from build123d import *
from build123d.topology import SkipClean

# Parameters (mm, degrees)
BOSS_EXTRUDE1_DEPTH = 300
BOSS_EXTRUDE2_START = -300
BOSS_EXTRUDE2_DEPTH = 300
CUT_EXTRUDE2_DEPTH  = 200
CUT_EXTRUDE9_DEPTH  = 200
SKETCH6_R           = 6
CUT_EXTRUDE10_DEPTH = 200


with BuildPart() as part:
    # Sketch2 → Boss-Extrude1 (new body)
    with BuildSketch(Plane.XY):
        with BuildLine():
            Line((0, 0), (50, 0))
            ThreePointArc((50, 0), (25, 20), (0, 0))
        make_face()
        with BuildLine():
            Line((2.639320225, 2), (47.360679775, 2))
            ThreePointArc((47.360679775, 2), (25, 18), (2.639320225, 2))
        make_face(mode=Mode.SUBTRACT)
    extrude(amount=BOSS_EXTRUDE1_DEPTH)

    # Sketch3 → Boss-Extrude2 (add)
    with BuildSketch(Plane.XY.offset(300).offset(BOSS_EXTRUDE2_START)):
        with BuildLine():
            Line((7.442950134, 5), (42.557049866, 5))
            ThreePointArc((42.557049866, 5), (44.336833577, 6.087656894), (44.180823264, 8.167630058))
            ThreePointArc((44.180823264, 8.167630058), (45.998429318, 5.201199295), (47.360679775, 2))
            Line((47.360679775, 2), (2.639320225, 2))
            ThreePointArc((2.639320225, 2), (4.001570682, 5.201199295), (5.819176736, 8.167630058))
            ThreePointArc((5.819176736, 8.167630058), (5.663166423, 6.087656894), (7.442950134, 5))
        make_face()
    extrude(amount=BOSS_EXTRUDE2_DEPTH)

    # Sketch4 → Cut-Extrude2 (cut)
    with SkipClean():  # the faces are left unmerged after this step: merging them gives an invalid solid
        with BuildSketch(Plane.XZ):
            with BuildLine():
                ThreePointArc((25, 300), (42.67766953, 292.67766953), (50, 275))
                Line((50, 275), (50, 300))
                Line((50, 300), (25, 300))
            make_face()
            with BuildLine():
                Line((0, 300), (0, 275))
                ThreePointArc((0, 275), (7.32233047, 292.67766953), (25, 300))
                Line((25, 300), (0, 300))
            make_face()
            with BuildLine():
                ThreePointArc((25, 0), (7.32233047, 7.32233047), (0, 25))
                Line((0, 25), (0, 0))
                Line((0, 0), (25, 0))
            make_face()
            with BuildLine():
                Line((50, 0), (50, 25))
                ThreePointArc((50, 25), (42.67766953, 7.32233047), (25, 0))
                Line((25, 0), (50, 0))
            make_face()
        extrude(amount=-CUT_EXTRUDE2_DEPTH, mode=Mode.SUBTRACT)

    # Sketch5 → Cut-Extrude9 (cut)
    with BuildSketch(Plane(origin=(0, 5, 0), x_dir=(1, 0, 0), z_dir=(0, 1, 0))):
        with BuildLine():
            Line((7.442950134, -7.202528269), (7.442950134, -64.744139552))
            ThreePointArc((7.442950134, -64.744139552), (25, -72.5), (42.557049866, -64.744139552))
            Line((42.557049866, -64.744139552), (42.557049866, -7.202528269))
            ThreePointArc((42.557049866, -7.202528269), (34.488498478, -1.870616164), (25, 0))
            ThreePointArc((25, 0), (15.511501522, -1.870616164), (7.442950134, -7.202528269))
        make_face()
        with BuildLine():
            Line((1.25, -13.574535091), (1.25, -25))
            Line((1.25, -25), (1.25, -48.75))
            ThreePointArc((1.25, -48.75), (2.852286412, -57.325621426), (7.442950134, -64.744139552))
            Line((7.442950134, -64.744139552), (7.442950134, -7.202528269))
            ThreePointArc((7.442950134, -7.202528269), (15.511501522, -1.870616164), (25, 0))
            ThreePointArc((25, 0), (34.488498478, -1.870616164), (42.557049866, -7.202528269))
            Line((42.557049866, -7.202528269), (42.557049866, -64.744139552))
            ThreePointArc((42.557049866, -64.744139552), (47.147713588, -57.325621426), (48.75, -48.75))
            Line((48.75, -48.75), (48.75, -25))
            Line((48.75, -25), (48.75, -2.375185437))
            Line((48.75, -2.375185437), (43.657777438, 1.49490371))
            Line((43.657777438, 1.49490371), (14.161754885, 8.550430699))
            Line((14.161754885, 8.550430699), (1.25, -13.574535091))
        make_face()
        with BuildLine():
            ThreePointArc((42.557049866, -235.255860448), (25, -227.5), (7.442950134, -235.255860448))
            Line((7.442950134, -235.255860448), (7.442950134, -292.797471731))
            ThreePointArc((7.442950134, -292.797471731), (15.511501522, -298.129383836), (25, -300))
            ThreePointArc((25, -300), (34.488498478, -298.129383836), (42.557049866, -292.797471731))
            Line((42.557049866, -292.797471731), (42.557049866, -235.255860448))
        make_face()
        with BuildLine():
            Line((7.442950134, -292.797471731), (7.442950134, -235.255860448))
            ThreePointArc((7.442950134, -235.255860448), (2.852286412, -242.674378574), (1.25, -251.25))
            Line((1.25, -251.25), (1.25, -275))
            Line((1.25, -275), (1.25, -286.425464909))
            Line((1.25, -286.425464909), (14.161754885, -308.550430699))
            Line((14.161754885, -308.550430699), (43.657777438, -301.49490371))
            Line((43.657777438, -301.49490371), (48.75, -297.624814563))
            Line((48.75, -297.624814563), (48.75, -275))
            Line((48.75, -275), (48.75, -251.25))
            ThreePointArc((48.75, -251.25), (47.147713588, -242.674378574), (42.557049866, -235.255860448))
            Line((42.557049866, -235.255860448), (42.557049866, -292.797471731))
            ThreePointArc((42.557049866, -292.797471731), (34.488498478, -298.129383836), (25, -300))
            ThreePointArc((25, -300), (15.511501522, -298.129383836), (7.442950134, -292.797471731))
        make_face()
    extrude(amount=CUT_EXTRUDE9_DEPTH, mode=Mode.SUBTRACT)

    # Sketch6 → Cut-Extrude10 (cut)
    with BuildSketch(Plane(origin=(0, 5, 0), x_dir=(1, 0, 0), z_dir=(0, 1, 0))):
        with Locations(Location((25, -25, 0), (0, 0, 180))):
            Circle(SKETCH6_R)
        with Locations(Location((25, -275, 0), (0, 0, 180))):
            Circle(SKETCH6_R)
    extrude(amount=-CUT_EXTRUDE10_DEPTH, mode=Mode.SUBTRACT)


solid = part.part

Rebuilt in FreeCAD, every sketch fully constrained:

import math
import FreeCAD as App
import Part
import Sketcher

doc = App.newDocument("Part")
body = doc.addObject("PartDesign::Body", "Body")

sketch1 = body.newObject("Sketcher::SketchObject", "Sketch")
sketch1.AttachmentSupport = (doc.getObject("XY_Plane"), [""])
sketch1.MapMode = "FlatFace"
sketch1.addGeometry([
    Part.LineSegment(App.Vector(0, 0, 0), App.Vector(50, 0, 0)),
    Part.ArcOfCircle(Part.Circle(App.Vector(25, -6, 0), App.Vector(0, 0, 1), 26), math.radians(13), math.radians(167)),
    Part.LineSegment(App.Vector(47, 2, 0), App.Vector(3, 2, 0)),
    Part.ArcOfCircle(Part.Circle(App.Vector(25, -6, 0), App.Vector(0, 0, 1), 24), math.radians(19), math.radians(161)),
], False)
sketch1.addConstraint([
    Sketcher.Constraint("Coincident", 0, 1, 1, 2),
    Sketcher.Constraint("Coincident", 1, 1, 0, 2),
    Sketcher.Constraint("Coincident", 2, 1, 3, 1),
    Sketcher.Constraint("Coincident", 3, 2, 2, 2),
    Sketcher.Constraint("Horizontal", 0),
    Sketcher.Constraint("Horizontal", 2),
    Sketcher.Constraint("Coincident", 0, 1, -1, 1),
    Sketcher.Constraint("Coincident", 3, 3, 1, 3),
    Sketcher.Constraint("DistanceX", 0, 1, 0, 2, 50.0),
    Sketcher.Constraint("DistanceY", -1, 1, 2, 1, 2.0),
    Sketcher.Constraint("Radius", 1, 25.625),
    Sketcher.Constraint("Radius", 3, 23.625),
])
pad1 = body.newObject("PartDesign::Pad", "Pad")
pad1.Profile = sketch1
pad1.Length = 300

sketch2 = body.newObject("Sketcher::SketchObject", "Sketch001")
sketch2.AttachmentSupport = (doc.getObject("XY_Plane"), [""])
sketch2.MapMode = "FlatFace"
sketch2.addGeometry([
    Part.LineSegment(App.Vector(42.6, 5, 0), App.Vector(7.4, 5, 0)),
    Part.ArcOfCircle(Part.Circle(App.Vector(7.4, 7, 0), App.Vector(0, 0, 1), 2), math.radians(144), math.radians(270)),
    Part.ArcOfCircle(Part.Circle(App.Vector(25, -5.6, 0), App.Vector(0, 0, 1), 23.6), math.radians(144.28), math.radians(161.17)),
    Part.LineSegment(App.Vector(2.6, 2, 0), App.Vector(47.4, 2, 0)),
    Part.ArcOfCircle(Part.Circle(App.Vector(25, -5.6, 0), App.Vector(0, 0, 1), 23.6), math.radians(18.83), math.radians(35.72)),
    Part.ArcOfCircle(Part.Circle(App.Vector(42.6, 7, 0), App.Vector(0, 0, 1), 2), math.radians(-90), math.radians(36)),
], False)
sketch2.addConstraint([
    Sketcher.Constraint("Tangent", 0, 2, 1, 2),
    Sketcher.Constraint("Tangent", 1, 1, 2, 1),
    Sketcher.Constraint("Coincident", 2, 2, 3, 1),
    Sketcher.Constraint("Coincident", 3, 2, 4, 1),
    Sketcher.Constraint("Tangent", 4, 2, 5, 2),
    Sketcher.Constraint("Tangent", 5, 1, 0, 1),
    Sketcher.Constraint("Horizontal", 0),
    Sketcher.Constraint("Horizontal", 3),
    Sketcher.Constraint("Coincident", 4, 3, 2, 3),
    Sketcher.Constraint("Equal", 2, 4),
    Sketcher.Constraint("Equal", 1, 5),
    Sketcher.Constraint("Radius", 1, 2.0),
    Sketcher.Constraint("DistanceY", -1, 1, 1, 3, 7.0),
    Sketcher.Constraint("DistanceX", -1, 1, 2, 3, 25.0),
    Sketcher.Constraint("DistanceY", -1, 1, 2, 2, 2.0),
    Sketcher.Constraint("Radius", 2, 23.625),
    Sketcher.Constraint("DistanceX", 0, 2, 0, 1, 35.1141),
])
pad2 = body.newObject("PartDesign::Pad", "Pad001")
pad2.Profile = sketch2
pad2.Length = 300

sketch3 = body.newObject("Sketcher::SketchObject", "Sketch002")
sketch3.AttachmentSupport = (doc.getObject("XZ_Plane"), [""])
sketch3.MapMode = "FlatFace"
sketch3.addGeometry([
    Part.ArcOfCircle(Part.Circle(App.Vector(25, 275, 0), App.Vector(0, 0, 1), 25), math.radians(0), math.radians(90)),
    Part.LineSegment(App.Vector(50, 275, 0), App.Vector(50, 300, 0)),
    Part.LineSegment(App.Vector(50, 300, 0), App.Vector(25, 300, 0)),
    Part.LineSegment(App.Vector(0, 300, 0), App.Vector(0, 275, 0)),
    Part.ArcOfCircle(Part.Circle(App.Vector(25, 275, 0), App.Vector(0, 0, 1), 25), math.radians(90), math.radians(180)),
    Part.LineSegment(App.Vector(25, 300, 0), App.Vector(0, 300, 0)),
    Part.ArcOfCircle(Part.Circle(App.Vector(25, 25, 0), App.Vector(0, 0, 1), 25), math.radians(180), math.radians(270)),
    Part.LineSegment(App.Vector(0, 25, 0), App.Vector(0, 0, 0)),
    Part.LineSegment(App.Vector(0, 0, 0), App.Vector(25, 0, 0)),
    Part.LineSegment(App.Vector(50, 0, 0), App.Vector(50, 25, 0)),
    Part.ArcOfCircle(Part.Circle(App.Vector(25, 25, 0), App.Vector(0, 0, 1), 25), math.radians(-90), math.radians(0)),
    Part.LineSegment(App.Vector(25, 0, 0), App.Vector(50, 0, 0)),
], False)
sketch3.addConstraint([
    Sketcher.Constraint("Tangent", 0, 1, 1, 1),
    Sketcher.Constraint("Coincident", 1, 2, 2, 1),
    Sketcher.Constraint("Tangent", 2, 2, 0, 2),
    Sketcher.Constraint("Tangent", 3, 2, 4, 2),
    Sketcher.Constraint("Tangent", 4, 1, 5, 1),
    Sketcher.Constraint("Coincident", 5, 2, 3, 1),
    Sketcher.Constraint("Tangent", 6, 1, 7, 1),
    Sketcher.Constraint("Coincident", 7, 2, 8, 1),
    Sketcher.Constraint("Tangent", 8, 2, 6, 2),
    Sketcher.Constraint("Tangent", 9, 2, 10, 2),
    Sketcher.Constraint("Tangent", 10, 1, 11, 1),
    Sketcher.Constraint("Coincident", 11, 2, 9, 1),
    Sketcher.Constraint("Vertical", 1),
    Sketcher.Constraint("Horizontal", 2),
    Sketcher.Constraint("Vertical", 3),
    Sketcher.Constraint("Horizontal", 5),
    Sketcher.Constraint("Vertical", 7),
    Sketcher.Constraint("Horizontal", 8),
    Sketcher.Constraint("Vertical", 9),
    Sketcher.Constraint("Horizontal", 11),
    Sketcher.Constraint("Coincident", 7, 2, -1, 1),
    Sketcher.Constraint("Coincident", 4, 3, 0, 3),
    Sketcher.Constraint("Coincident", 10, 3, 6, 3),
    Sketcher.Constraint("Equal", 0, 4),
    Sketcher.Constraint("Equal", 4, 6),
    Sketcher.Constraint("Equal", 6, 10),
    Sketcher.Constraint("PointOnObject", 3, 2, -2),
    Sketcher.Constraint("Radius", 0, 25.0),
    Sketcher.Constraint("DistanceY", -1, 1, 0, 3, 275.0),
])
pocket1 = body.newObject("PartDesign::Pocket", "Pocket")
pocket1.Profile = sketch3
pocket1.Length = 200

sketch4 = body.newObject("Sketcher::SketchObject", "Sketch003")
sketch4.AttachmentSupport = (doc.getObject("XZ_Plane"), [""])
sketch4.MapMode = "FlatFace"
sketch4.AttachmentOffset = App.Placement(App.Vector(0, 0, -5), App.Rotation())
sketch4.addGeometry([
    Part.ArcOfCircle(Part.Circle(App.Vector(25, 49, 0), App.Vector(0, 0, 1), 24), math.radians(42), math.radians(138)),
    Part.ArcOfCircle(Part.Circle(App.Vector(25, 49, 0), App.Vector(0, 0, 1), 24), math.radians(0), math.radians(42)),
    Part.LineSegment(App.Vector(49, 49, 0), App.Vector(49, 2, 0)),
    Part.LineSegment(App.Vector(49, 2, 0), App.Vector(44, -1, 0)),
    Part.LineSegment(App.Vector(44, -1, 0), App.Vector(14, -9, 0)),
    Part.LineSegment(App.Vector(14, -9, 0), App.Vector(1, 14, 0)),
    Part.LineSegment(App.Vector(1, 14, 0), App.Vector(1, 49, 0)),
    Part.ArcOfCircle(Part.Circle(App.Vector(25, 49, 0), App.Vector(0, 0, 1), 24), math.radians(138), math.radians(180)),
    Part.ArcOfCircle(Part.Circle(App.Vector(25, 251, 0), App.Vector(0, 0, 1), 24), math.radians(-138), math.radians(-42)),
    Part.ArcOfCircle(Part.Circle(App.Vector(25, 251, 0), App.Vector(0, 0, 1), 24), math.radians(180), math.radians(222)),
    Part.LineSegment(App.Vector(1, 251, 0), App.Vector(1, 286, 0)),
    Part.LineSegment(App.Vector(1, 286, 0), App.Vector(14, 309, 0)),
    Part.LineSegment(App.Vector(14, 309, 0), App.Vector(44, 301, 0)),
    Part.LineSegment(App.Vector(44, 301, 0), App.Vector(49, 298, 0)),
    Part.LineSegment(App.Vector(49, 298, 0), App.Vector(49, 251, 0)),
    Part.ArcOfCircle(Part.Circle(App.Vector(25, 251, 0), App.Vector(0, 0, 1), 24), math.radians(-42), math.radians(0)),
], False)
sketch4.addConstraint([
    Sketcher.Constraint("Tangent", 0, 1, 1, 2),
    Sketcher.Constraint("Tangent", 1, 1, 2, 1),
    Sketcher.Constraint("Coincident", 2, 2, 3, 1),
    Sketcher.Constraint("Coincident", 3, 2, 4, 1),
    Sketcher.Constraint("Coincident", 4, 2, 5, 1),
    Sketcher.Constraint("Coincident", 5, 2, 6, 1),
    Sketcher.Constraint("Tangent", 6, 2, 7, 2),
    Sketcher.Constraint("Tangent", 7, 1, 0, 2),
    Sketcher.Constraint("Tangent", 8, 1, 9, 2),
    Sketcher.Constraint("Tangent", 9, 1, 10, 1),
    Sketcher.Constraint("Coincident", 10, 2, 11, 1),
    Sketcher.Constraint("Coincident", 11, 2, 12, 1),
    Sketcher.Constraint("Coincident", 12, 2, 13, 1),
    Sketcher.Constraint("Coincident", 13, 2, 14, 1),
    Sketcher.Constraint("Tangent", 14, 2, 15, 2),
    Sketcher.Constraint("Tangent", 15, 1, 8, 2),
    Sketcher.Constraint("Vertical", 2),
    Sketcher.Constraint("Vertical", 6),
    Sketcher.Constraint("Vertical", 10),
    Sketcher.Constraint("Vertical", 14),
    Sketcher.Constraint("Equal", 0, 1),
    Sketcher.Constraint("Equal", 1, 7),
    Sketcher.Constraint("Equal", 7, 8),
    Sketcher.Constraint("Equal", 8, 9),
    Sketcher.Constraint("Equal", 9, 15),
    Sketcher.Constraint("Horizontal", 0, 1, 7, 1),
    Sketcher.Constraint("Horizontal", 8, 1, 15, 1),
    Sketcher.Constraint("Vertical", 7, 3, 8, 3),
    Sketcher.Constraint("Vertical", 7, 1, 8, 1),
    Sketcher.Constraint("Vertical", 4, 2, 11, 2),
    Sketcher.Constraint("Vertical", 3, 2, 12, 2),
    Sketcher.Constraint("Equal", 6, 10),
    Sketcher.Constraint("Equal", 2, 14),
    Sketcher.Constraint("Equal", 5, 11),
    Sketcher.Constraint("Equal", 4, 12),
    Sketcher.Constraint("Radius", 0, 23.75),
    Sketcher.Constraint("DistanceX", -1, 1, 0, 3, 25.0),
    Sketcher.Constraint("DistanceY", 1, 3, 8, 3, 202.5),
    Sketcher.Constraint("DistanceY", -1, 1, 0, 3, 48.75),
    Sketcher.Constraint("DistanceX", 7, 1, 0, 1, 35.1141),
    Sketcher.Constraint("Distance", 3, 6.395961),
    Sketcher.Constraint("Distance", 5, 25.616938),
    Sketcher.Constraint("DistanceY", 2, 2, 2, 1, 46.374815),
    Sketcher.Constraint("DistanceY", 6, 1, 6, 2, 35.175465),
    Sketcher.Constraint("DistanceY", 4, 2, -1, 1, 8.550431),
    Sketcher.Constraint("DistanceY", 3, 2, 2, 2, 3.870089),
])
pocket2 = body.newObject("PartDesign::Pocket", "Pocket001")
pocket2.Profile = sketch4
pocket2.Length = 200

sketch5 = body.newObject("Sketcher::SketchObject", "Sketch004")
sketch5.AttachmentSupport = (doc.getObject("XZ_Plane"), [""])
sketch5.MapMode = "FlatFace"
sketch5.AttachmentOffset = App.Placement(App.Vector(0, 0, -5), App.Rotation())
sketch5.addGeometry([
    Part.Circle(App.Vector(25, 25, 0), App.Vector(0, 0, 1), 6),
    Part.Circle(App.Vector(25, 275, 0), App.Vector(0, 0, 1), 6),
], False)
sketch5.addConstraint([
    Sketcher.Constraint("Equal", 0, 1),
    Sketcher.Constraint("Vertical", 0, 3, 1, 3),
    Sketcher.Constraint("Diameter", 0, 12.0),
    Sketcher.Constraint("DistanceX", -1, 1, 0, 3, 25.0),
    Sketcher.Constraint("DistanceY", -1, 1, 0, 3, 25.0),
    Sketcher.Constraint("DistanceY", -1, 1, 1, 3, 275.0),
])
pocket3 = body.newObject("PartDesign::Pocket", "Pocket002")
pocket3.Profile = sketch5
pocket3.Length = 200
pocket3.Reversed = True

doc.recompute()
